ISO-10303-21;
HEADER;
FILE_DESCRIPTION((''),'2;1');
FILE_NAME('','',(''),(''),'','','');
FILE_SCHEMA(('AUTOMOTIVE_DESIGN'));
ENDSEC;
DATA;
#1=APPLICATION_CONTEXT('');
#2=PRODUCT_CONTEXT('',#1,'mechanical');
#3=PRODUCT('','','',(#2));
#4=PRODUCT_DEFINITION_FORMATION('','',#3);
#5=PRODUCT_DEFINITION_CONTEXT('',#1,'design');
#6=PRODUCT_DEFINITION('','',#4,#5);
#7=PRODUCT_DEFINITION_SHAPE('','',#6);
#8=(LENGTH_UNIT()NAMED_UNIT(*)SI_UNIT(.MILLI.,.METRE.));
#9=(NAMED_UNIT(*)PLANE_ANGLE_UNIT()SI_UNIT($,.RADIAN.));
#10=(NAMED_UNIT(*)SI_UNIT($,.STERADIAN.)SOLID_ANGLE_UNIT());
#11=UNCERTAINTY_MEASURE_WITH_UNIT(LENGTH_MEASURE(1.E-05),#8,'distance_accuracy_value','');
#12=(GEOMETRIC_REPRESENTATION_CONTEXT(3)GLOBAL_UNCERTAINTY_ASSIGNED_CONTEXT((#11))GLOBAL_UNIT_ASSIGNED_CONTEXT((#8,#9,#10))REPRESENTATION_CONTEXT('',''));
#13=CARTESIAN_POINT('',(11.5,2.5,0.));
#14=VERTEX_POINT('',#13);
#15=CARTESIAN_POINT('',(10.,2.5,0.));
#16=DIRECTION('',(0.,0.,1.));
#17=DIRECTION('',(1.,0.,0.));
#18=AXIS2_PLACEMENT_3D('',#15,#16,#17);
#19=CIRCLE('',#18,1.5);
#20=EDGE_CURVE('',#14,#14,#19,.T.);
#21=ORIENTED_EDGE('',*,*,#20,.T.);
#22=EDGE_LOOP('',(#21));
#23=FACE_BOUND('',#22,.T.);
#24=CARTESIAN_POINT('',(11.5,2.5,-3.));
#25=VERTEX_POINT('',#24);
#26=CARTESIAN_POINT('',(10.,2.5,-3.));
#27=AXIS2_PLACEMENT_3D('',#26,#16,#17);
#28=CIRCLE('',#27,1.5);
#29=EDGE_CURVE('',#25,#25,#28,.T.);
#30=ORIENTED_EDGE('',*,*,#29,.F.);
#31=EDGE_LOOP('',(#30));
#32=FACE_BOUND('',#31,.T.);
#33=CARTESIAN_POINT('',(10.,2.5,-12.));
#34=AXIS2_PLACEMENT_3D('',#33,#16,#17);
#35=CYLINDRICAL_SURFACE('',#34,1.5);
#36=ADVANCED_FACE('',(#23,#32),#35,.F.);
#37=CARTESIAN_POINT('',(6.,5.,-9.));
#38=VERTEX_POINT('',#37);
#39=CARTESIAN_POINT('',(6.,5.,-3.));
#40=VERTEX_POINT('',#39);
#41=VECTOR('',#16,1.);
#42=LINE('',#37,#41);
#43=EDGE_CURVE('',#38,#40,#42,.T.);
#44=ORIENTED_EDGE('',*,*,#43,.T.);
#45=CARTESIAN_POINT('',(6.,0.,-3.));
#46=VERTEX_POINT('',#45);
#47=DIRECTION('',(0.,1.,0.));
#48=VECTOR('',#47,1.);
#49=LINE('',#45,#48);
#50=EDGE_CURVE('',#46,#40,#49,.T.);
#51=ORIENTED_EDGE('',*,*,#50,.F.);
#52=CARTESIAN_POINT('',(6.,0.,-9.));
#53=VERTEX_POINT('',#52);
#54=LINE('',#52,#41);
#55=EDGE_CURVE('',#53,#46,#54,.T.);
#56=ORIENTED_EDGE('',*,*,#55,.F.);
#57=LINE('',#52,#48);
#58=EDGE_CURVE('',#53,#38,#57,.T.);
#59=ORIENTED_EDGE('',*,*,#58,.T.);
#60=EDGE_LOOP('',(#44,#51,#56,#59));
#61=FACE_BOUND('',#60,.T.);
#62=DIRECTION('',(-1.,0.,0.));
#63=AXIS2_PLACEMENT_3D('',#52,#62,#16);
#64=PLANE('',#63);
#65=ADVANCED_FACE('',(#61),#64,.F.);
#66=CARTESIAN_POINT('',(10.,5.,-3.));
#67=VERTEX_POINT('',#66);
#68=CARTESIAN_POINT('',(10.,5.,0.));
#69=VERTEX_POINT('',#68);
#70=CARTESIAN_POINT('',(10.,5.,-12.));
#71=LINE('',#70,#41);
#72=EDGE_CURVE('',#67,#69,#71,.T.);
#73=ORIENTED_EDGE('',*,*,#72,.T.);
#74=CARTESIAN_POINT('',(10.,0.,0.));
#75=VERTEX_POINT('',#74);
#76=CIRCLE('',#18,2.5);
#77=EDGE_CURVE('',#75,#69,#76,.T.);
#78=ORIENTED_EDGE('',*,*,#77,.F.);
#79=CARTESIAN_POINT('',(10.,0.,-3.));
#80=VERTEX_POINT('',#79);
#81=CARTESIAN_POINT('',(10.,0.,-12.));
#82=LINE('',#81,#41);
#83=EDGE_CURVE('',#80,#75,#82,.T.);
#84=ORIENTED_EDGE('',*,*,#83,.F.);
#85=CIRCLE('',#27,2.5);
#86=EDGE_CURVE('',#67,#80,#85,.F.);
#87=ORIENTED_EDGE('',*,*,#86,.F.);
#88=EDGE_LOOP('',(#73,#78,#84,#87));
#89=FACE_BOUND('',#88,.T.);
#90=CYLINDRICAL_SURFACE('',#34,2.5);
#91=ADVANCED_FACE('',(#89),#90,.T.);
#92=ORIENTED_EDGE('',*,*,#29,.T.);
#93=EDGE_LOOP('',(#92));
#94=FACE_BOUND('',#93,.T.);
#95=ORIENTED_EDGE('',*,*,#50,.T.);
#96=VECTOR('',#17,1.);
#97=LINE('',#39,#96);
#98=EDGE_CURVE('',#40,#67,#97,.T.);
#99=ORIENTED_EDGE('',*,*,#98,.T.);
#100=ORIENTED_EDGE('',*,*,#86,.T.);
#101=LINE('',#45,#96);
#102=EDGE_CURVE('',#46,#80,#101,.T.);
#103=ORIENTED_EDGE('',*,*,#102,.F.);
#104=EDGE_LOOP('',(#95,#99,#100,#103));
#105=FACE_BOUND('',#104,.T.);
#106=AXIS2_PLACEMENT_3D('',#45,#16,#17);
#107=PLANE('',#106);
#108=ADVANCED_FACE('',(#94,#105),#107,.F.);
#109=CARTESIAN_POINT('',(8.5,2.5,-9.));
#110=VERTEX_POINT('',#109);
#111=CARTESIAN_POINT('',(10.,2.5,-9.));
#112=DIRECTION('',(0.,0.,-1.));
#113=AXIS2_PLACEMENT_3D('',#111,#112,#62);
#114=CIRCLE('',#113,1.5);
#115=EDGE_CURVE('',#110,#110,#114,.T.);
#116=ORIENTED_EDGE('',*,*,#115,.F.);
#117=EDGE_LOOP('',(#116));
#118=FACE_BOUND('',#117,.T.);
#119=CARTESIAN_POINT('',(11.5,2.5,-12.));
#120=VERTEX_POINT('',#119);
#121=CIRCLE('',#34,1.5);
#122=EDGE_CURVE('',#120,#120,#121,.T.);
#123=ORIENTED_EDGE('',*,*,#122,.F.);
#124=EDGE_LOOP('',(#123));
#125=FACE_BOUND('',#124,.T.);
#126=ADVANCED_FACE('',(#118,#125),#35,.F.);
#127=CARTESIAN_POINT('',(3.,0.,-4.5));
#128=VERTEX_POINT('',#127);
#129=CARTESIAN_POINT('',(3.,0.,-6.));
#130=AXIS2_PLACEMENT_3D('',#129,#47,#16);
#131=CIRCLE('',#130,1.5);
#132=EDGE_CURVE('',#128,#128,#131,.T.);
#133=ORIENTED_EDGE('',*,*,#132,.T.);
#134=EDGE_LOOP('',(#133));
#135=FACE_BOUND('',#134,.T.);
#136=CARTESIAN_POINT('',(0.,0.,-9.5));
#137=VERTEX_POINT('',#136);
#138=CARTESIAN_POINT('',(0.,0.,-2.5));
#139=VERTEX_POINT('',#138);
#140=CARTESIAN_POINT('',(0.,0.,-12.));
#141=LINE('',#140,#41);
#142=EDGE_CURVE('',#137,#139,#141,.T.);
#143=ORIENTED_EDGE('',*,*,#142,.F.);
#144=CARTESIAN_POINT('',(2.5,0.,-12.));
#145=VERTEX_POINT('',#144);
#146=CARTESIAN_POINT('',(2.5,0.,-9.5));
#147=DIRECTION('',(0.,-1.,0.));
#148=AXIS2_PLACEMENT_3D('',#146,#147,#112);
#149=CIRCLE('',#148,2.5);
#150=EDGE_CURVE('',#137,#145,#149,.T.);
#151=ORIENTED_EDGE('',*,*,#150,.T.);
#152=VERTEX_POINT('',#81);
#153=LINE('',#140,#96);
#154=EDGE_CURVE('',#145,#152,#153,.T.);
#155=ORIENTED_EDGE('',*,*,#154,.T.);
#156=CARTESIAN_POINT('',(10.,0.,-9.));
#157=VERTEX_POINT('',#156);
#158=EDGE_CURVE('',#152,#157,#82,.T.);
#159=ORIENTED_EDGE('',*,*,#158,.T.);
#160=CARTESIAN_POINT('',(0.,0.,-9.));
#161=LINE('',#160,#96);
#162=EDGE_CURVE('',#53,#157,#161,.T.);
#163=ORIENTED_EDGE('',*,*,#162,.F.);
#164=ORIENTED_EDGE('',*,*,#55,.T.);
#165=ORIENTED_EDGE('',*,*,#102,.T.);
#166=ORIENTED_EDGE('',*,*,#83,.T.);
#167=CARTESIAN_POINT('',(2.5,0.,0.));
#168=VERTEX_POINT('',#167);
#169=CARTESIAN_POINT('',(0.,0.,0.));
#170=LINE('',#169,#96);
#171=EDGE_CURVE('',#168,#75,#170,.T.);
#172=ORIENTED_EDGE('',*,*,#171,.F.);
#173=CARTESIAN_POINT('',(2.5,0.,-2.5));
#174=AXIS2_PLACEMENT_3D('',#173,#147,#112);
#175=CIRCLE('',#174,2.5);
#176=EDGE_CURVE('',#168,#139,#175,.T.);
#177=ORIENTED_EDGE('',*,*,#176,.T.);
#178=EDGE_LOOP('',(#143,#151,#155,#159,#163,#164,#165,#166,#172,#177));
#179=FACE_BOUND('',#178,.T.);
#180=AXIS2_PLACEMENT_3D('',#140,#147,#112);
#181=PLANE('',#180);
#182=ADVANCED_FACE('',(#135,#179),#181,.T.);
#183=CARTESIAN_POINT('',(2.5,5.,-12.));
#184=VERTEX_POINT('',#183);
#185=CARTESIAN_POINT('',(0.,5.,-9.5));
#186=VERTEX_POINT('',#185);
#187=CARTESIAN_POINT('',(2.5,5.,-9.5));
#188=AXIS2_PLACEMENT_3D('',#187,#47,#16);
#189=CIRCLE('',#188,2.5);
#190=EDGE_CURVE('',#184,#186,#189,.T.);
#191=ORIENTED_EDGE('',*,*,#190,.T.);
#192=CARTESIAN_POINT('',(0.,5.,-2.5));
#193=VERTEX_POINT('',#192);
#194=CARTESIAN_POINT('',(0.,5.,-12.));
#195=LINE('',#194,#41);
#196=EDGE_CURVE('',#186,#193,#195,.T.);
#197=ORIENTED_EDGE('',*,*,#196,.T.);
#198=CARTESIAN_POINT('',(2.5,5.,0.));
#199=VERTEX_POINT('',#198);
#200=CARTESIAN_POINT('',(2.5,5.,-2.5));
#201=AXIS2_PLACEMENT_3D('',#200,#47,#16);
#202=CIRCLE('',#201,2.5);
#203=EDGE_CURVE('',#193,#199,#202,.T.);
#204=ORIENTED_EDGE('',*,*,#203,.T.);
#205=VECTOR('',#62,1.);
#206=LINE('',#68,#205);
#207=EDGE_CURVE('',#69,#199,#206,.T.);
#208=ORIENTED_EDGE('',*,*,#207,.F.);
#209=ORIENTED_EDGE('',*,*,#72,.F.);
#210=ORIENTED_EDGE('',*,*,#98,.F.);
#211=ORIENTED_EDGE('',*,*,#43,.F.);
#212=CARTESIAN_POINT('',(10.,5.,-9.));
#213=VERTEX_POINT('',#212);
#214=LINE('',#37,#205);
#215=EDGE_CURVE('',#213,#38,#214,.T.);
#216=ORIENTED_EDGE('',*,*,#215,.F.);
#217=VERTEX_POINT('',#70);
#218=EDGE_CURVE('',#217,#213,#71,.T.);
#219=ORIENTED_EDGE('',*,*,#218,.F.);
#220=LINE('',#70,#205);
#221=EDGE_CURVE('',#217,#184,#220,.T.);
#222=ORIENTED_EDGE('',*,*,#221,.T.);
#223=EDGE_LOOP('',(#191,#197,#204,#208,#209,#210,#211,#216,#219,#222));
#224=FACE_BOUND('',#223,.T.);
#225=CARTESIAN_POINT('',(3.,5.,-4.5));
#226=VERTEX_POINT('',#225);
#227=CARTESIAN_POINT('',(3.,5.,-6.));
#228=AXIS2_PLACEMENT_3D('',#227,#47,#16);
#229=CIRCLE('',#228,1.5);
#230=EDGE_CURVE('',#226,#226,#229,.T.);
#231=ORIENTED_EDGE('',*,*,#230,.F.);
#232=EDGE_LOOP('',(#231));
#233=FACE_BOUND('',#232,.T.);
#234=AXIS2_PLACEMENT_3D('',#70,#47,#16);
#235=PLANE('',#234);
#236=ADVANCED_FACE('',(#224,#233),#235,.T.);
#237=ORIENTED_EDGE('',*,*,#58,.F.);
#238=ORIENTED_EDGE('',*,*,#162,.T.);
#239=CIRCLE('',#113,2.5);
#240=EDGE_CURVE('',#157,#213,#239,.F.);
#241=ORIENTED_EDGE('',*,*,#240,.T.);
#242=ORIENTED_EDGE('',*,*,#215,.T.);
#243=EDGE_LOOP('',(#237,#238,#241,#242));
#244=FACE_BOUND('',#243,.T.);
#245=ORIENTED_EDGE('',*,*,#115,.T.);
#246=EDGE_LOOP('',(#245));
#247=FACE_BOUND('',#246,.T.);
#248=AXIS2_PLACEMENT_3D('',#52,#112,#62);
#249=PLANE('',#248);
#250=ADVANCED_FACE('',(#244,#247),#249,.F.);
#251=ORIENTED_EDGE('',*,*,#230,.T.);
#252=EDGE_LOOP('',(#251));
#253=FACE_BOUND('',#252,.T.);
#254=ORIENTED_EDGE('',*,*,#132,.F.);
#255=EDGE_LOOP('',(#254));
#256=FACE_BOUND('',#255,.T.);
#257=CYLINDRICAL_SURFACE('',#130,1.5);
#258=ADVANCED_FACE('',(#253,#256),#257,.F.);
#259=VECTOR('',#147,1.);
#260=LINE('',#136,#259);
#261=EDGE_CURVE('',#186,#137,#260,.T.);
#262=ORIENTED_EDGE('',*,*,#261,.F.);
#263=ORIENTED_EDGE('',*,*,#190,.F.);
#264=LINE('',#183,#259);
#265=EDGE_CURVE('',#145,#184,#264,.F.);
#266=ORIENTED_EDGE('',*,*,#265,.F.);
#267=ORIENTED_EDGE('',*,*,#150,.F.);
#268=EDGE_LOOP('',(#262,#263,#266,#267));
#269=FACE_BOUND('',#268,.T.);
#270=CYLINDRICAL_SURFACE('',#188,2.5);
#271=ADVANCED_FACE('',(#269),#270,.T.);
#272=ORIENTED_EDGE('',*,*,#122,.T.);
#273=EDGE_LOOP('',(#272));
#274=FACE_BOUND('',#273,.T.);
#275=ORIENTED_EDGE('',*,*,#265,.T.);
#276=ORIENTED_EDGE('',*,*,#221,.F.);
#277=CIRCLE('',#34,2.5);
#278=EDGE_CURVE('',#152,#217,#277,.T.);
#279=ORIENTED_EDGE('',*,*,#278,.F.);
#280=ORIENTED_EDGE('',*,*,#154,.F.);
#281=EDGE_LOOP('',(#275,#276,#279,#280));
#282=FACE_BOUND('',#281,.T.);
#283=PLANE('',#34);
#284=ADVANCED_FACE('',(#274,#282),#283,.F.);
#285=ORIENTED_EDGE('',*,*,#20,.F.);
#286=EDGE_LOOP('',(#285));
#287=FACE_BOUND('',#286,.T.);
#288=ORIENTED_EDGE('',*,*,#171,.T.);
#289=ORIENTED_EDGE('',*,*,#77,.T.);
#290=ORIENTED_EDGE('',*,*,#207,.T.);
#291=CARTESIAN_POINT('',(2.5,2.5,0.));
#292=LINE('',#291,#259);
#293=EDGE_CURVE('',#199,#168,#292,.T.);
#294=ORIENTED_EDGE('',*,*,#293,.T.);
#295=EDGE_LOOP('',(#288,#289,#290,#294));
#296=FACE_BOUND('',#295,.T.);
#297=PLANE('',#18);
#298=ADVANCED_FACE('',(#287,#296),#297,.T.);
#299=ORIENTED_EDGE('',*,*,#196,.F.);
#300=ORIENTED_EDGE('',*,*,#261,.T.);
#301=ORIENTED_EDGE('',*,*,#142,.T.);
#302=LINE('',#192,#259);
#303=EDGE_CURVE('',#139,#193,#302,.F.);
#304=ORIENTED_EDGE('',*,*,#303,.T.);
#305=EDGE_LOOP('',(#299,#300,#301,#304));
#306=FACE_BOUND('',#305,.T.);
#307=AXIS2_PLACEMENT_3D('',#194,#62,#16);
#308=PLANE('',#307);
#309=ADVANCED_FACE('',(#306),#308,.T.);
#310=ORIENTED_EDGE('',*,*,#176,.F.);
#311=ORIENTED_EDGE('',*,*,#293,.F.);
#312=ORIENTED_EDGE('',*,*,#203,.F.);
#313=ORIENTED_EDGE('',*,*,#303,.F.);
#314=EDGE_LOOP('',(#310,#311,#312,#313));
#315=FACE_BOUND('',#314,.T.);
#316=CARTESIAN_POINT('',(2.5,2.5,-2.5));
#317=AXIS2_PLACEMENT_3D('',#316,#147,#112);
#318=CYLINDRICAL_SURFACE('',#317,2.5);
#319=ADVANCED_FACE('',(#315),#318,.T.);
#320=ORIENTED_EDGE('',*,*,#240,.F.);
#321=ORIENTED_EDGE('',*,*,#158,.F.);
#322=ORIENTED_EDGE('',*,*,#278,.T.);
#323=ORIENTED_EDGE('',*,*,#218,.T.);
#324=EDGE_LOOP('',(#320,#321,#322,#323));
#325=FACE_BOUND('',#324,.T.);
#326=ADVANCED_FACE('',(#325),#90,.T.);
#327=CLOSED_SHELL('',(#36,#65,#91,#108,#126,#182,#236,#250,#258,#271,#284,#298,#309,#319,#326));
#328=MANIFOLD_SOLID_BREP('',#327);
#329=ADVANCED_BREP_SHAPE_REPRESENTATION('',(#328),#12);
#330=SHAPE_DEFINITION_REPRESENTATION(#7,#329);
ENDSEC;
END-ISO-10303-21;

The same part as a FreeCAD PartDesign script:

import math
import FreeCAD as App
import Part
import Sketcher

V = App.Vector
Q = App.Units.Quantity


def edges_at(feature, points):
    """Names of the edges that pass closest to the given points."""
    edges = feature.Shape.Edges
    near = lambda p: min(range(len(edges)), key=lambda i: edges[i].distToShape(Part.Vertex(*p))[0])
    return sorted({f"Edge{near(p) + 1}" for p in points})

doc = App.newDocument("Part")
body = doc.addObject("PartDesign::Body", "Body")

# Sketch on XY plane
sketch1 = doc.addObject("Sketcher::SketchObject", "Sketch")
body.addObject(sketch1)
sketch1.AttachmentSupport = (doc.XY_Plane, [""])
sketch1.MapMode = "FlatFace"
sketch1.addGeometry([
    Part.LineSegment(V(0, 0, 0), V(10, 0, 0)),
    Part.ArcOfCircle(Part.Circle(V(10, 2.5, 0), V(0, 0, 1), 2.5), math.radians(-90), math.radians(90)),
    Part.LineSegment(V(10, 5, 0), V(0, 5, 0)),
    Part.LineSegment(V(0, 5, 0), V(0, 0, 0)),
], False)
sketch1.addConstraint([
    Sketcher.Constraint("Tangent", 0, 2, 1, 1),
    Sketcher.Constraint("Tangent", 1, 2, 2, 1),
    Sketcher.Constraint("Coincident", 2, 2, 3, 1),
    Sketcher.Constraint("Coincident", 3, 2, 0, 1),
    Sketcher.Constraint("Horizontal", 0),
    Sketcher.Constraint("Horizontal", 2),
    Sketcher.Constraint("Vertical", 3),
    Sketcher.Constraint("Coincident", 3, 2, -1, 1),
    Sketcher.Constraint("Radius", 1, Q("2.5 mm")),
    Sketcher.Constraint("DistanceX", 0, 1, 0, 2, Q("10 mm")),
])
pad1 = doc.addObject("PartDesign::Pad", "Pad")
body.addObject(pad1)
pad1.Profile = sketch1
pad1.Length = 12
pad1.Reversed = True

# Sketch on XZ plane
sketch2 = doc.addObject("Sketcher::SketchObject", "Sketch001")
body.addObject(sketch2)
sketch2.AttachmentSupport = (doc.XZ_Plane, [""])
sketch2.MapMode = "FlatFace"
sketch2.AttachmentOffset = App.Placement(V(0, 0, -5), App.Rotation())
sketch2.addGeometry([
    Part.LineSegment(V(6, -9, 0), V(6, -3, 0)),
    Part.LineSegment(V(6, -3, 0), V(12, -3, 0)),
    Part.LineSegment(V(12, -3, 0), V(12, -9, 0)),
    Part.LineSegment(V(12, -9, 0), V(6, -9, 0)),
], False)
sketch2.addConstraint([
    Sketcher.Constraint("Coincident", 0, 2, 1, 1),
    Sketcher.Constraint("Coincident", 1, 2, 2, 1),
    Sketcher.Constraint("Coincident", 2, 2, 3, 1),
    Sketcher.Constraint("Coincident", 3, 2, 0, 1),
    Sketcher.Constraint("Vertical", 0),
    Sketcher.Constraint("Horizontal", 1),
    Sketcher.Constraint("Vertical", 2),
    Sketcher.Constraint("Horizontal", 3),
    Sketcher.Constraint("DistanceY", 0, 1, 0, 2, Q("6 mm")),
    Sketcher.Constraint("DistanceX", 1, 1, 1, 2, Q("6.5 mm")),
    Sketcher.Constraint("DistanceX", -1, 1, 0, 2, Q("6 mm")),
    Sketcher.Constraint("DistanceY", 0, 2, -1, 1, Q("3 mm")),
])
pocket1 = doc.addObject("PartDesign::Pocket", "Pocket")
body.addObject(pocket1)
pocket1.Profile = sketch2
pocket1.Type = "ThroughAll"
pocket1.Reversed = True

# Sketch on XY plane
sketch3 = doc.addObject("Sketcher::SketchObject", "Sketch002")
body.addObject(sketch3)
sketch3.AttachmentSupport = (doc.XY_Plane, [""])
sketch3.MapMode = "FlatFace"
sketch3.addGeometry(Part.Circle(V(10, 2.5, 0), V(0, 0, 1), 1.5), False)
sketch3.addConstraint([
    Sketcher.Constraint("Diameter", 0, Q("3 mm")),
    Sketcher.Constraint("DistanceX", -1, 1, 0, 3, Q("10 mm")),
    Sketcher.Constraint("DistanceY", -1, 1, 0, 3, Q("2.5 mm")),
])
pocket2 = doc.addObject("PartDesign::Pocket", "Pocket001")
body.addObject(pocket2)
pocket2.Profile = sketch3
pocket2.Length = 12

# Sketch on XZ plane
sketch4 = doc.addObject("Sketcher::SketchObject", "Sketch003")
body.addObject(sketch4)
sketch4.AttachmentSupport = (doc.XZ_Plane, [""])
sketch4.MapMode = "FlatFace"
sketch4.AttachmentOffset = App.Placement(V(0, 0, -5), App.Rotation())
sketch4.addGeometry(Part.Circle(V(3, -6, 0), V(0, 0, 1), 1.5), False)
sketch4.addConstraint([
    Sketcher.Constraint("Diameter", 0, Q("3 mm")),
    Sketcher.Constraint("DistanceX", -1, 1, 0, 3, Q("3 mm")),
    Sketcher.Constraint("DistanceY", 0, 3, -1, 1, Q("6 mm")),
])
pocket3 = doc.addObject("PartDesign::Pocket", "Pocket002")
body.addObject(pocket3)
pocket3.Profile = sketch4
pocket3.Type = "ThroughAll"
pocket3.Reversed = True
doc.recompute()

fillet = doc.addObject("PartDesign::Fillet", "Fillet")
body.addObject(fillet)
fillet.Base = (pocket3, edges_at(pocket3, [(0, 2.5, -12), (0, 2.5, 0)]))
fillet.Radius = 2.5

doc.recompute()
